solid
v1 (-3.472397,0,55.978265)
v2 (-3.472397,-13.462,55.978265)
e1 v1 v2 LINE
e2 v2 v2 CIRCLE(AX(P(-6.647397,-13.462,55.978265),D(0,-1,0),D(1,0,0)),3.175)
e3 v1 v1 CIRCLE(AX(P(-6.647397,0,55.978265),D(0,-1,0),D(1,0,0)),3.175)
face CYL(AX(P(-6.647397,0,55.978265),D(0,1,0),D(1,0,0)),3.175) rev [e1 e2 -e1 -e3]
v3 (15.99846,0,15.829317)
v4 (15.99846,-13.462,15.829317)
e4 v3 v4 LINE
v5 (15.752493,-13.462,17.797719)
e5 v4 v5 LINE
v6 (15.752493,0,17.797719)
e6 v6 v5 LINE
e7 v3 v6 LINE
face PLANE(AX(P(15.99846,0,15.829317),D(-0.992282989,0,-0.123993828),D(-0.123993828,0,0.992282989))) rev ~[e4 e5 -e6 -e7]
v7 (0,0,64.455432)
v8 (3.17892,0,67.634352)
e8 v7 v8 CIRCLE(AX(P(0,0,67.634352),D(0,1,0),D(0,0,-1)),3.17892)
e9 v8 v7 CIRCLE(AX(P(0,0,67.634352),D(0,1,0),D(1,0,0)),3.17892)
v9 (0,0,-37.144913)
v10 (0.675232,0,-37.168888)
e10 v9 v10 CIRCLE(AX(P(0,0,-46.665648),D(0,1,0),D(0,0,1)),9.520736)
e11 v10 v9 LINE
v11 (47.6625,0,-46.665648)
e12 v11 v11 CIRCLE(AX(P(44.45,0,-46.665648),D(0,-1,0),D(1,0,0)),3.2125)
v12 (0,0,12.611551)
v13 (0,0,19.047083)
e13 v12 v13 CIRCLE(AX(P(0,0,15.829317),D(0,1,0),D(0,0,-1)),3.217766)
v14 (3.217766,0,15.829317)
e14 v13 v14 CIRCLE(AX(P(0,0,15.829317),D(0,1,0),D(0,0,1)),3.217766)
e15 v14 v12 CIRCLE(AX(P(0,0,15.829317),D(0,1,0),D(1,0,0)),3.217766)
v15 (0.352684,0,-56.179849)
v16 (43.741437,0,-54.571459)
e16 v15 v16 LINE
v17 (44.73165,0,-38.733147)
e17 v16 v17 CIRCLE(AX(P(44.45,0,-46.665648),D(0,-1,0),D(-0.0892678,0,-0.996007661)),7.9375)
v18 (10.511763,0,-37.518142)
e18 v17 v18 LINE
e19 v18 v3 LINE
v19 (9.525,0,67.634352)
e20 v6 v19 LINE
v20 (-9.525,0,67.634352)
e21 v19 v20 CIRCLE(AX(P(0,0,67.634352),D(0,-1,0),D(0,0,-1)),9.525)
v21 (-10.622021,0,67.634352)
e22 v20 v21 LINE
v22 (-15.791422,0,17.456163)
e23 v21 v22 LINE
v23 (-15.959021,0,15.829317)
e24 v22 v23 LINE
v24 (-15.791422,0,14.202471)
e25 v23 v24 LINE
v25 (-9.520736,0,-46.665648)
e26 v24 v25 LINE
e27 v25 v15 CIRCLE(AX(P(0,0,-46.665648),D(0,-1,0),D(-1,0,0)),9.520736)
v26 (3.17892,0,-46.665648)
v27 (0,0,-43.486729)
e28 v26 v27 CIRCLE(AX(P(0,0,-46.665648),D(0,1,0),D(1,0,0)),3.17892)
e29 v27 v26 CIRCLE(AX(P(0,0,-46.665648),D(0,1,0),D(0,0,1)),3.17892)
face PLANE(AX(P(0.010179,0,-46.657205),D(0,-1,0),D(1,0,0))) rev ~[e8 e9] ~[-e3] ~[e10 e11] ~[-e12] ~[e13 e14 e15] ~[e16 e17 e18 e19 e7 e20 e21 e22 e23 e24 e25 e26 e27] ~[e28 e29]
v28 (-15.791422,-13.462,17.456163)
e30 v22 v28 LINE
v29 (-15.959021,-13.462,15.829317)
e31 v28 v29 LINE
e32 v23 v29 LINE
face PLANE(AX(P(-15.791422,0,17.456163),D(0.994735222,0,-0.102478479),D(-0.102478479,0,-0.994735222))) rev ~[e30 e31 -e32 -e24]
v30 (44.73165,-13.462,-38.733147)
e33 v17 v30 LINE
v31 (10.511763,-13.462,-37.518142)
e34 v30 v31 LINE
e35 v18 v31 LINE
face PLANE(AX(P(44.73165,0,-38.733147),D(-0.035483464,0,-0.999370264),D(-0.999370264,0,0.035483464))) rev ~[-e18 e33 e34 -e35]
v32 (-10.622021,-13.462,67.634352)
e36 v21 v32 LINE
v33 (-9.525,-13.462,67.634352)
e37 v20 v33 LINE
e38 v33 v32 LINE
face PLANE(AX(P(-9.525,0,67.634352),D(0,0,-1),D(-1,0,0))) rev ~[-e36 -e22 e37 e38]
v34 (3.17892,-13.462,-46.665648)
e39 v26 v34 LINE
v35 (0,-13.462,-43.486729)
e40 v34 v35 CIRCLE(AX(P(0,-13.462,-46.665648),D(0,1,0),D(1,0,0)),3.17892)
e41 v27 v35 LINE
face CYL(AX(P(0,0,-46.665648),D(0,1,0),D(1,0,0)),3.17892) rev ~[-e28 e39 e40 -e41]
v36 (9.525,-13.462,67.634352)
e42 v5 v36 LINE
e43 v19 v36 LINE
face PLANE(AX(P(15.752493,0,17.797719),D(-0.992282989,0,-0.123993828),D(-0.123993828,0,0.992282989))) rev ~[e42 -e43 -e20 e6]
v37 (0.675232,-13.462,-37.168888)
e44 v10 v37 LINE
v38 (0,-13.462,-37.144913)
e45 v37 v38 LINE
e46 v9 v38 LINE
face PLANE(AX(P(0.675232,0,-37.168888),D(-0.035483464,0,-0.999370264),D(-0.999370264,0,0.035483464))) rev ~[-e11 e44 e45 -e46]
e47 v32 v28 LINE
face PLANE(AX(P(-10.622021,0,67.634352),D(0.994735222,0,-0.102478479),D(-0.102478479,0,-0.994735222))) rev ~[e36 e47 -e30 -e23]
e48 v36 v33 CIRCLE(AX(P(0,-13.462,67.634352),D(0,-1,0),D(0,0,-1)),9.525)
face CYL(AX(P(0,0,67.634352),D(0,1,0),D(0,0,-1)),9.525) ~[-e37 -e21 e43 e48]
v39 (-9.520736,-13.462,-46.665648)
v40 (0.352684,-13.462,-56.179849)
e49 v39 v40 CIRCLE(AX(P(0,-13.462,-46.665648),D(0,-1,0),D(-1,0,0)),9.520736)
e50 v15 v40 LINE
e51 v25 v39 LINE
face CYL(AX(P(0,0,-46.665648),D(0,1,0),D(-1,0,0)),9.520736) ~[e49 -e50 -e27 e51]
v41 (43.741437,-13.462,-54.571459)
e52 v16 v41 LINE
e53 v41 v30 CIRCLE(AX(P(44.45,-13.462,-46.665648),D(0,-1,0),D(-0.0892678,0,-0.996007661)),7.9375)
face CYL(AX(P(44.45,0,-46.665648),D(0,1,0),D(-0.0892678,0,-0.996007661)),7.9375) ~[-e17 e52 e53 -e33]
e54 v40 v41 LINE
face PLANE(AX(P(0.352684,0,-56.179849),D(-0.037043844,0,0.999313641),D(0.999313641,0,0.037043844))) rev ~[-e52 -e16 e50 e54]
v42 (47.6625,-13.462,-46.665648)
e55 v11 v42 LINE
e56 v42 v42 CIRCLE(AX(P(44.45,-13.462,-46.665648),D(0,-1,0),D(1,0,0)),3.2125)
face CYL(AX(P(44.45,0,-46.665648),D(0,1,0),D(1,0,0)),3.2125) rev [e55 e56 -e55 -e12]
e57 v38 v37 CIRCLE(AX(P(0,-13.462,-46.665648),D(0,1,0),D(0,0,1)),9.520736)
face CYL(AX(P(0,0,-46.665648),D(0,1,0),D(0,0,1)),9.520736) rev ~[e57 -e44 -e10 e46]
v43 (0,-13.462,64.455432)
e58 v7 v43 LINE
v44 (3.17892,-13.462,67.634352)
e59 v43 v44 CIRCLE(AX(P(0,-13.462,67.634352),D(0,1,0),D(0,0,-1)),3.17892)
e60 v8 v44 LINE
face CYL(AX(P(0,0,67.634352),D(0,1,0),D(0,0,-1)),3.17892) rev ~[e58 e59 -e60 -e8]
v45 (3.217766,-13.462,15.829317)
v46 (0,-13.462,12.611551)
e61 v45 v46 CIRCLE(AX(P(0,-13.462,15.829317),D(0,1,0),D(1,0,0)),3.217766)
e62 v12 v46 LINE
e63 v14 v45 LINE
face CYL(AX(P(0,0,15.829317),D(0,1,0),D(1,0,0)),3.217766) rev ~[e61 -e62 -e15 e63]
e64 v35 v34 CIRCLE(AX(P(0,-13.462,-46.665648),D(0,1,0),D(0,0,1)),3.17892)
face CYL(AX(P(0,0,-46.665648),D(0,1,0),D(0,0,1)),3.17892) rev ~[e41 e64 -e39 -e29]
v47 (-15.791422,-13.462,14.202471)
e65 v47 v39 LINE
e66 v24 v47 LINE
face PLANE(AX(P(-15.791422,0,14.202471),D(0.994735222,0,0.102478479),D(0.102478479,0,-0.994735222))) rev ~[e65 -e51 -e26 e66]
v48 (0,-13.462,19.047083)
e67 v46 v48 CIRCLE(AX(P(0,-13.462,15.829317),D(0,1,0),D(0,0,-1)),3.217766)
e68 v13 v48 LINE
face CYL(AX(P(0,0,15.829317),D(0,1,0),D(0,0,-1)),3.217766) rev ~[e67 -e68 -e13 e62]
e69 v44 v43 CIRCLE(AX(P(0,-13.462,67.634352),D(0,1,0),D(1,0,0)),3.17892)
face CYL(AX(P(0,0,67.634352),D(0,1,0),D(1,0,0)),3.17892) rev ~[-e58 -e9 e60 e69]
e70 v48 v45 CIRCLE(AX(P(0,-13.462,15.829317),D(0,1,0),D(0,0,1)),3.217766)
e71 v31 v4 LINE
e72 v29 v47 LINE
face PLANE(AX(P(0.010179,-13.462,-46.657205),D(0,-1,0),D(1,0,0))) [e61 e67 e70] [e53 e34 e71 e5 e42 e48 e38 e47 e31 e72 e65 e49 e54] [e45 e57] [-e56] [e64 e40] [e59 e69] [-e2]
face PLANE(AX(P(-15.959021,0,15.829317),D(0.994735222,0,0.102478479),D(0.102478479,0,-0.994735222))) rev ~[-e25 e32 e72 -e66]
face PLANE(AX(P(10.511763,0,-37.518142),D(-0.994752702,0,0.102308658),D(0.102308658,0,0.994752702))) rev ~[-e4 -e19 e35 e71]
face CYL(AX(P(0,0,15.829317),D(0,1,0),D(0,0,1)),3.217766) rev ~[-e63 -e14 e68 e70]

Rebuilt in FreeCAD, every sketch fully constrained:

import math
import FreeCAD as App
import Part
import Sketcher
from FreeCAD import Vector
Q = App.Units.Quantity

doc = App.newDocument("Part")
params = doc.addObject("Spreadsheet::Sheet", "Params")
for row, (alias, value) in enumerate([
    ("sketch1_diameter", "0.25 in"),
    ("sketch1_radius", "0.375 in"),
    ("sketch1_radius2", "0.3125 in"),
    ("pad1_length", "0.53 in"),
], start=1):
    params.set(f"A{row}", alias)
    params.set(f"B{row}", "=" + value)
    params.setAlias(f"B{row}", alias)

body = doc.addObject("PartDesign::Body", "Body")

sketch1 = doc.addObject("Sketcher::SketchObject", "Sketch")
body.addObject(sketch1)
sketch1.AttachmentSupport = (doc.XZ_Plane, [""])
sketch1.MapMode = "FlatFace"
sketch1.addGeometry(Part.LineSegment(Vector(10.511763, -37.518142, 0), Vector(15.99846, 15.829317, 0)), False)
sketch1.addGeometry(Part.LineSegment(Vector(15.99846, 15.829317, 0), Vector(15.752493, 17.797719, 0)), False)
sketch1.addGeometry(Part.LineSegment(Vector(15.752493, 17.797719, 0), Vector(9.525, 67.634352, 0)), False)
sketch1.addGeometry(Part.ArcOfCircle(Part.Circle(Vector(0, 67.634352, 0), Vector(0, 0, 1), 9.525), math.radians(0), math.radians(180)), False)
sketch1.addGeometry(Part.LineSegment(Vector(-9.525, 67.634352, 0), Vector(-10.622021, 67.634352, 0)), False)
sketch1.addGeometry(Part.LineSegment(Vector(-10.622021, 67.634352, 0), Vector(-15.791422, 17.456163, 0)), False)
sketch1.addGeometry(Part.LineSegment(Vector(-15.791422, 17.456163, 0), Vector(-15.959021, 15.829317, 0)), False)
sketch1.addGeometry(Part.LineSegment(Vector(-15.959021, 15.829317, 0), Vector(-15.791422, 14.202471, 0)), False)
sketch1.addGeometry(Part.LineSegment(Vector(-15.791422, 14.202471, 0), Vector(-9.520736, -46.665648, 0)), False)
sketch1.addGeometry(Part.ArcOfCircle(Part.Circle(Vector(0, -46.665648, 0), Vector(0, 0, 1), 9.520736), math.radians(180), math.radians(272.12294)), False)
sketch1.addGeometry(Part.LineSegment(Vector(0.352684, -56.179849, 0), Vector(43.741437, -54.571459, 0)), False)
sketch1.addGeometry(Part.ArcOfCircle(Part.Circle(Vector(44.45, -46.665648, 0), Vector(0, 0, 1), 7.9375), math.radians(-95.121486), math.radians(87.96652)), False)
sketch1.addGeometry(Part.LineSegment(Vector(44.73165, -38.733147, 0), Vector(10.511763, -37.518142, 0)), False)
sketch1.addGeometry(Part.ArcOfCircle(Part.Circle(Vector(0, -46.665648, 0), Vector(0, 0, 1), 3.17892), math.radians(0), math.radians(90)), False)
sketch1.addGeometry(Part.ArcOfCircle(Part.Circle(Vector(0, -46.665648, 0), Vector(0, 0, 1), 3.17892), math.radians(90), math.radians(360)), False)
sketch1.addGeometry(Part.ArcOfCircle(Part.Circle(Vector(0, -46.665648, 0), Vector(0, 0, 1), 9.520736), math.radians(85.933041), math.radians(90)), False)
sketch1.addGeometry(Part.LineSegment(Vector(0.675232, -37.168888, 0), Vector(0, -37.144913, 0)), False)
sketch1.addGeometry(Part.Circle(Vector(44.45, -46.665648, 0), Vector(0, 0, 1), 3.2125), False)
sketch1.addGeometry(Part.ArcOfCircle(Part.Circle(Vector(0, 15.829317, 0), Vector(0, 0, 1), 3.217766), math.radians(90), math.radians(270)), False)
sketch1.addGeometry(Part.ArcOfCircle(Part.Circle(Vector(0, 15.829317, 0), Vector(0, 0, 1), 3.217766), math.radians(0), math.radians(90)), False)
sketch1.addGeometry(Part.ArcOfCircle(Part.Circle(Vector(0, 15.829317, 0), Vector(0, 0, 1), 3.217766), math.radians(-90), math.radians(0)), False)
sketch1.addGeometry(Part.Circle(Vector(-6.647397, 55.978265, 0), Vector(0, 0, 1), 3.175), False)
sketch1.addGeometry(Part.ArcOfCircle(Part.Circle(Vector(0, 67.634352, 0), Vector(0, 0, 1), 3.17892), math.radians(0), math.radians(270)), False)
sketch1.addGeometry(Part.ArcOfCircle(Part.Circle(Vector(0, 67.634352, 0), Vector(0, 0, 1), 3.17892), math.radians(-90), math.radians(0)), False)
sketch1.addConstraint(Sketcher.Constraint("Coincident", 0, 2, 1, 1))
sketch1.addConstraint(Sketcher.Constraint("Coincident", 1, 2, 2, 1))
sketch1.addConstraint(Sketcher.Constraint("Coincident", 2, 2, 3, 1))
sketch1.addConstraint(Sketcher.Constraint("Coincident", 3, 2, 4, 1))
sketch1.addConstraint(Sketcher.Constraint("Coincident", 4, 2, 5, 1))
sketch1.addConstraint(Sketcher.Constraint("Coincident", 5, 2, 6, 1))
sketch1.addConstraint(Sketcher.Constraint("Coincident", 6, 2, 7, 1))
sketch1.addConstraint(Sketcher.Constraint("Coincident", 7, 2, 8, 1))
sketch1.addConstraint(Sketcher.Constraint("Coincident", 8, 2, 9, 1))
sketch1.addConstraint(Sketcher.Constraint("Coincident", 9, 2, 10, 1))
sketch1.addConstraint(Sketcher.Constraint("Coincident", 10, 2, 11, 1))
sketch1.addConstraint(Sketcher.Constraint("Coincident", 11, 2, 12, 1))
sketch1.addConstraint(Sketcher.Constraint("Coincident", 12, 2, 0, 1))
sketch1.addConstraint(Sketcher.Constraint("Coincident", 13, 1, 14, 2))
sketch1.addConstraint(Sketcher.Constraint("Coincident", 14, 1, 13, 2))
sketch1.addConstraint(Sketcher.Constraint("Coincident", 15, 1, 16, 1))
sketch1.addConstraint(Sketcher.Constraint("Coincident", 16, 2, 15, 2))
sketch1.addConstraint(Sketcher.Constraint("Coincident", 18, 1, 19, 2))
sketch1.addConstraint(Sketcher.Constraint("Coincident", 19, 1, 20, 2))
sketch1.addConstraint(Sketcher.Constraint("Coincident", 20, 1, 18, 2))
sketch1.addConstraint(Sketcher.Constraint("Coincident", 22, 1, 23, 2))
sketch1.addConstraint(Sketcher.Constraint("Coincident", 23, 1, 22, 2))
sketch1.addConstraint(Sketcher.Constraint("Horizontal", 4))
sketch1.addConstraint(Sketcher.Constraint("Coincident", 13, 3, 9, 3))
sketch1.addConstraint(Sketcher.Constraint("Coincident", 15, 3, 9, 3))
sketch1.addConstraint(Sketcher.Constraint("Coincident", 17, 3, 11, 3))
sketch1.addConstraint(Sketcher.Constraint("Coincident", 19, 3, 18, 3))
sketch1.addConstraint(Sketcher.Constraint("Coincident", 22, 3, 3, 3))
sketch1.addConstraint(Sketcher.Constraint("PointOnObject", 3, 3, -2))
sketch1.addConstraint(Sketcher.Constraint("PointOnObject", 9, 3, -2))
sketch1.addConstraint(Sketcher.Constraint("PointOnObject", 14, 3, -2))
sketch1.addConstraint(Sketcher.Constraint("PointOnObject", 18, 3, -2))
sketch1.addConstraint(Sketcher.Constraint("PointOnObject", 20, 3, -2))
sketch1.addConstraint(Sketcher.Constraint("PointOnObject", 23, 3, -2))
sketch1.addConstraint(Sketcher.Constraint("PointOnObject", 14, 1, -2))
sketch1.addConstraint(Sketcher.Constraint("PointOnObject", 16, 2, -2))
sketch1.addConstraint(Sketcher.Constraint("PointOnObject", 18, 1, -2))
sketch1.addConstraint(Sketcher.Constraint("PointOnObject", 20, 1, -2))
sketch1.addConstraint(Sketcher.Constraint("PointOnObject", 23, 1, -2))
sketch1.addConstraint(Sketcher.Constraint("Diameter", 21, Q("0.25 in")))
sketch1.addConstraint(Sketcher.Constraint("Radius", 3, Q("0.375 in")))
sketch1.addConstraint(Sketcher.Constraint("Radius", 11, Q("0.3125 in")))
sketch1.addConstraint(Sketcher.Constraint("DistanceY", 9, 3, 3, 3, Q("4.5 in")))
sketch1.addConstraint(Sketcher.Constraint("DistanceY", 11, 3, 3, 3, Q("4.5 in")))
sketch1.addConstraint(Sketcher.Constraint("Diameter", 17, 6.425))
sketch1.addConstraint(Sketcher.Constraint("DistanceX", -1, 1, 11, 3, Q("1.75 in")))
sketch1.addConstraint(Sketcher.Constraint("Radius", 13, 3.17892))
sketch1.addConstraint(Sketcher.Constraint("Radius", 22, 3.17892))
sketch1.addConstraint(Sketcher.Constraint("Radius", 9, 9.520736))
sketch1.addConstraint(Sketcher.Constraint("Radius", 15, 9.520736))
sketch1.addConstraint(Sketcher.Constraint("Radius", 18, 3.217766))
sketch1.addConstraint(Sketcher.Constraint("DistanceX", 4, 2, 4, 1, 1.097021))
sketch1.addConstraint(Sketcher.Constraint("DistanceY", 0, 2, 1, 2, 1.968401))
sketch1.addConstraint(Sketcher.Constraint("DistanceY", 18, 3, 1, 2, 1.968401))
sketch1.addConstraint(Sketcher.Constraint("DistanceX", 6, 2, 5, 2, 0.167599))
sketch1.addConstraint(Sketcher.Constraint("DistanceY", 6, 2, 1, 2, 1.968401))
sketch1.addConstraint(Sketcher.Constraint("DistanceX", 6, 2, 7, 2, 0.167599))
sketch1.addConstraint(Sketcher.Constraint("DistanceY", 9, 2, 15, 3, 9.514201))
sketch1.addConstraint(Sketcher.Constraint("DistanceY", 9, 2, 8, 2, 9.514201))
sketch1.addConstraint(Sketcher.Constraint("DistanceY", 11, 3, 11, 2, 7.932501))
sketch1.addConstraint(Sketcher.Constraint("DistanceY", 9, 2, 13, 1, 9.514201))
sketch1.addConstraint(Sketcher.Constraint("DistanceY", 19, 1, 1, 2, 1.968401))
sketch1.addConstraint(Sketcher.Constraint("Distance", 1, 1.98371))
sketch1.addConstraint(Sketcher.Constraint("Distance", 12, 34.24145))
sketch1.addConstraint(Sketcher.Constraint("DistanceY", -1, 1, 3, 3, 67.634352))
sketch1.addConstraint(Sketcher.Constraint("DistanceX", -1, 1, 0, 2, 15.99846))
sketch1.addConstraint(Sketcher.Constraint("DistanceY", -1, 1, 1, 2, 17.797719))
sketch1.addConstraint(Sketcher.Constraint("DistanceY", -1, 1, 2, 2, 67.634352))
sketch1.addConstraint(Sketcher.Constraint("DistanceY", -1, 1, 3, 2, 67.634352))
sketch1.addConstraint(Sketcher.Constraint("DistanceX", 5, 2, -1, 1, 15.791422))
sketch1.addConstraint(Sketcher.Constraint("DistanceY", -1, 1, 7, 2, 14.202471))
sketch1.addConstraint(Sketcher.Constraint("DistanceY", 10, 2, -1, 1, 54.571459))
sketch1.addConstraint(Sketcher.Constraint("DistanceY", 12, 2, -1, 1, 37.518142))
sketch1.addConstraint(Sketcher.Constraint("DistanceX", -1, 1, 15, 1, 0.675232))
sketch1.addConstraint(Sketcher.Constraint("DistanceY", -1, 1, 22, 1, 67.634352))
sketch1.addConstraint(Sketcher.Constraint("DistanceX", 21, 3, 1, 2, 22.399889))
sketch1.addConstraint(Sketcher.Constraint("DistanceY", 7, 2, 5, 2, 3.253692))
sketch1.addConstraint(Sketcher.Constraint("DistanceY", -1, 1, 21, 3, 55.978265))
sketch1.setExpression("Constraints[39]", "Params.sketch1_diameter")
sketch1.setExpression("Constraints[40]", "Params.sketch1_radius")
sketch1.setExpression("Constraints[41]", "Params.sketch1_radius2")
pad1 = doc.addObject("PartDesign::Pad", "Pad")
body.addObject(pad1)
pad1.Profile = sketch1
pad1.setExpression("Length", "Params.pad1_length")

doc.recompute()
